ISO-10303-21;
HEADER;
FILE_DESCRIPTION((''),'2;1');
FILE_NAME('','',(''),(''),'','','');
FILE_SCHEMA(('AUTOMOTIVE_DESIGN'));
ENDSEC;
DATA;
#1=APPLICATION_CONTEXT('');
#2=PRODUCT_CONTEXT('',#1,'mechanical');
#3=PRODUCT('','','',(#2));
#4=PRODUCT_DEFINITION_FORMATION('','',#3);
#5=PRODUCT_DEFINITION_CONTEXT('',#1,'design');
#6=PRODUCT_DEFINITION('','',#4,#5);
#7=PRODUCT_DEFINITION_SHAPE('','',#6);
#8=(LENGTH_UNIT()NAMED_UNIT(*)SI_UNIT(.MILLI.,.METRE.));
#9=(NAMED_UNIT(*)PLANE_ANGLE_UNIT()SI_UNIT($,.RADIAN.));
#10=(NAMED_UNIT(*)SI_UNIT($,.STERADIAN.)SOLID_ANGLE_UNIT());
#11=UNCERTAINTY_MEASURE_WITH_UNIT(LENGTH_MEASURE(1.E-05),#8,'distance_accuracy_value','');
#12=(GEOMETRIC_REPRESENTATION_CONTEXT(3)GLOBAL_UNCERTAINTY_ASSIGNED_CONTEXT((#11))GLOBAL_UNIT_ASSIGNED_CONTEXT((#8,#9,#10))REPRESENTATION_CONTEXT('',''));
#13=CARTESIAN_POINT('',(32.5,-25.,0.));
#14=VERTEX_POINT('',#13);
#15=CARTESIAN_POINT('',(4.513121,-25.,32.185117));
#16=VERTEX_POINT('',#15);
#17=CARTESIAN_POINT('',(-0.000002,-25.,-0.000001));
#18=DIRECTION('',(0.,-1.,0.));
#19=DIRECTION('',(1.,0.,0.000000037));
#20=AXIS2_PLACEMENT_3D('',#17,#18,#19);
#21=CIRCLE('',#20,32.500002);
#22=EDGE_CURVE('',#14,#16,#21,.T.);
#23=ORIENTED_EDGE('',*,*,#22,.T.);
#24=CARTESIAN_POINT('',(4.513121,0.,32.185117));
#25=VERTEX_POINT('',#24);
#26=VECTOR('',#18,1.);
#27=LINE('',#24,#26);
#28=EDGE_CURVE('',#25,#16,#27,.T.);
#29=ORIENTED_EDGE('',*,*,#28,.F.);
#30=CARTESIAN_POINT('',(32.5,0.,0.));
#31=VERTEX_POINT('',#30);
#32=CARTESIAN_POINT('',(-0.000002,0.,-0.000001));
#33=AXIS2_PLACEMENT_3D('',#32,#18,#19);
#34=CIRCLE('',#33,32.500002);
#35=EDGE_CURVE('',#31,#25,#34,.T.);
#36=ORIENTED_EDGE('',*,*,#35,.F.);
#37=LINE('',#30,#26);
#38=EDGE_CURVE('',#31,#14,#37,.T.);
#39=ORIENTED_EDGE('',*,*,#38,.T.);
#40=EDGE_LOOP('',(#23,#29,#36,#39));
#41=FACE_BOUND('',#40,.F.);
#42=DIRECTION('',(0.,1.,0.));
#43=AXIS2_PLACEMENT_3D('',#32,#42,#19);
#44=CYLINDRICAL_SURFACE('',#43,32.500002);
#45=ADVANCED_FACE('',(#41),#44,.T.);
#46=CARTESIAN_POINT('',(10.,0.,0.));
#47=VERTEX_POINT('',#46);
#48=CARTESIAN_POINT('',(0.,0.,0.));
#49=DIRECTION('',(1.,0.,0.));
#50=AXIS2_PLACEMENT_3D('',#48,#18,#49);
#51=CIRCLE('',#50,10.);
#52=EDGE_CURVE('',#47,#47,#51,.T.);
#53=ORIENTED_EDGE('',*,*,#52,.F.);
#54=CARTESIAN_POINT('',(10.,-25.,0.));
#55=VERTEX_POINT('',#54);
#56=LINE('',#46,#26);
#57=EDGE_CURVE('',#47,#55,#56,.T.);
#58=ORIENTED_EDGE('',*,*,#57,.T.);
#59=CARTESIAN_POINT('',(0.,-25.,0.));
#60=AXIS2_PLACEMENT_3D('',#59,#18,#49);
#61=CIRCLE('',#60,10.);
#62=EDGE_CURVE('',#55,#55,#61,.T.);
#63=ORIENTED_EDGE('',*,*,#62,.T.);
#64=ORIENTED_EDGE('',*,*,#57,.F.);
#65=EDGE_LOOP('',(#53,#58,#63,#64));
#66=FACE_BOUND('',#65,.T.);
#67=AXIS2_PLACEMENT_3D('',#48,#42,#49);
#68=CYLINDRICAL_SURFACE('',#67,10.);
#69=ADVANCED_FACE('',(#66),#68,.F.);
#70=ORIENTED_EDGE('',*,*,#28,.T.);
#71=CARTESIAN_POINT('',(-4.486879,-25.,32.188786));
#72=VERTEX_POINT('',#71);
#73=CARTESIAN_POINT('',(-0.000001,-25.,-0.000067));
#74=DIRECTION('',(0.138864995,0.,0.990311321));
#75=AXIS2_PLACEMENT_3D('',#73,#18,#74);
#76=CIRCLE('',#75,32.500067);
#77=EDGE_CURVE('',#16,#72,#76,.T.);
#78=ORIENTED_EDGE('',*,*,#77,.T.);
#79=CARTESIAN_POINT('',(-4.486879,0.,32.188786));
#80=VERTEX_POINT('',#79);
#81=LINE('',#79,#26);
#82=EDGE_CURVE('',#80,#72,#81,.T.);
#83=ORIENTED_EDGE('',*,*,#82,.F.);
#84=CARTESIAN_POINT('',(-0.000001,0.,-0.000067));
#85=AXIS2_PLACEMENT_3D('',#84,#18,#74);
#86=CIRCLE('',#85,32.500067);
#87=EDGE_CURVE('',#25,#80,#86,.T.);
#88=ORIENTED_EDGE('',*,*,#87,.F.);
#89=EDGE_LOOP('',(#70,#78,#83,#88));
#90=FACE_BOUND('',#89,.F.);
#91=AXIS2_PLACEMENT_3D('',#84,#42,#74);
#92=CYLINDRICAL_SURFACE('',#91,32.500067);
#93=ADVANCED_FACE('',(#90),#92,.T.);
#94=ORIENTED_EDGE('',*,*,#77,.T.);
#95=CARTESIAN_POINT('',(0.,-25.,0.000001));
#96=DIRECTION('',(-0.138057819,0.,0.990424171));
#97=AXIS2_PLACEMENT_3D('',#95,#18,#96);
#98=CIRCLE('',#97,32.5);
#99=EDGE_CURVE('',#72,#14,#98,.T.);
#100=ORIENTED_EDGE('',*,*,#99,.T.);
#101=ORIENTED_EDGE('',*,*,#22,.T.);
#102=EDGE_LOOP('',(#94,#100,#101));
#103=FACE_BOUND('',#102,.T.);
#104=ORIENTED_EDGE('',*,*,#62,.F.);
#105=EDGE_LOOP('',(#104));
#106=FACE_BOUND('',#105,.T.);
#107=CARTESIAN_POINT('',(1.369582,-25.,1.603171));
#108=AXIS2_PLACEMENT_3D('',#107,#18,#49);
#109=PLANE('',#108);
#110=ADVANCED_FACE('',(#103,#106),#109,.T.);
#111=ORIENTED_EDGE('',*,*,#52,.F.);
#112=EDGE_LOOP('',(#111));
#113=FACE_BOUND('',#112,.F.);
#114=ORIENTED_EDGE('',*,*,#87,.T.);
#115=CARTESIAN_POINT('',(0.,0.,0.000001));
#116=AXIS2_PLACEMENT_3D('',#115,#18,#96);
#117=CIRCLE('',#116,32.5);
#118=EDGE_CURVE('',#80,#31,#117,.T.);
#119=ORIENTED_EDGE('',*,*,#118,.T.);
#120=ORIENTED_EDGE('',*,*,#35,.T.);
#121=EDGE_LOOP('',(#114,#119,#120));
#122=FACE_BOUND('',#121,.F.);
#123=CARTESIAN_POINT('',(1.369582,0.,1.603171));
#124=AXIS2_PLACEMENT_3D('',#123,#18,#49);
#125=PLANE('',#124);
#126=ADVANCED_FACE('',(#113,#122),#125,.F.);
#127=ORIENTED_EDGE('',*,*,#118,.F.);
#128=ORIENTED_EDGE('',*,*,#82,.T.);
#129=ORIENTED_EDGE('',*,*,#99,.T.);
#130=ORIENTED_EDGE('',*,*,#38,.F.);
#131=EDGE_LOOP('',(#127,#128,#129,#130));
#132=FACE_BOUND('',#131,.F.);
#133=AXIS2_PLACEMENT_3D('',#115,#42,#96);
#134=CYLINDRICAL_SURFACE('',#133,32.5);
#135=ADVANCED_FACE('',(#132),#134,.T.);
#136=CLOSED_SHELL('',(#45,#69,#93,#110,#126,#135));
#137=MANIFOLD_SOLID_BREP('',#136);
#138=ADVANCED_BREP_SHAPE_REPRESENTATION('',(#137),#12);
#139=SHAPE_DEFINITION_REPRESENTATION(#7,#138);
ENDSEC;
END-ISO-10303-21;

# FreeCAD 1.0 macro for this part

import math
import FreeCAD as App
import Part
import Sketcher

V = App.Vector
Q = App.Units.Quantity

doc = App.newDocument("Part")
body = doc.addObject("PartDesign::Body", "Body")

# Sketch on XZ plane
sketch1 = doc.addObject("Sketcher::SketchObject", "Sketch")
body.addObject(sketch1)
sketch1.AttachmentSupport = (doc.XZ_Plane, [""])
sketch1.MapMode = "FlatFace"
sketch1.addGeometry([
    Part.ArcOfCircle(Part.Circle(V(0, 0.000001, 0), V(0, 0, 1), 32.5), math.radians(97.935476), math.radians(359.999999)),
    Part.ArcOfCircle(Part.Circle(V(-0.000002, -0.000001, 0), V(0, 0, 1), 32.500002), math.radians(0.000002), math.radians(82.017808)),
    Part.ArcOfCircle(Part.Circle(V(-0.000001, -0.000067, 0), V(0, 0, 1), 32.500067), math.radians(82.017826), math.radians(97.935459)),
    Part.Circle(V(0, 0, 0), V(0, 0, 1), 10),
], False)
sketch1.addConstraint([
    Sketcher.Constraint("Coincident", 0, 2, 1, 1),
    Sketcher.Constraint("Coincident", 1, 2, 2, 1),
    Sketcher.Constraint("Coincident", 2, 2, 0, 1),
    Sketcher.Constraint("Coincident", 0, 3, -1, 1),
    Sketcher.Constraint("Coincident", 1, 3, -1, 1),
    Sketcher.Constraint("Coincident", 3, 3, -1, 1),
    Sketcher.Constraint("PointOnObject", 0, 2, -1),
    Sketcher.Constraint("Diameter", 3, Q("20 mm")),
    Sketcher.Constraint("Radius", 0, Q("32.5 mm")),
    Sketcher.Constraint("DistanceX", 2, 2, 1, 2, Q("9 mm")),
    Sketcher.Constraint("Radius", 2, Q("32.500067 mm")),
    Sketcher.Constraint("DistanceX", -1, 1, 1, 2, Q("4.513121 mm")),
])
pad1 = doc.addObject("PartDesign::Pad", "Pad")
body.addObject(pad1)
pad1.Profile = sketch1
pad1.Length = 25

doc.recompute()
